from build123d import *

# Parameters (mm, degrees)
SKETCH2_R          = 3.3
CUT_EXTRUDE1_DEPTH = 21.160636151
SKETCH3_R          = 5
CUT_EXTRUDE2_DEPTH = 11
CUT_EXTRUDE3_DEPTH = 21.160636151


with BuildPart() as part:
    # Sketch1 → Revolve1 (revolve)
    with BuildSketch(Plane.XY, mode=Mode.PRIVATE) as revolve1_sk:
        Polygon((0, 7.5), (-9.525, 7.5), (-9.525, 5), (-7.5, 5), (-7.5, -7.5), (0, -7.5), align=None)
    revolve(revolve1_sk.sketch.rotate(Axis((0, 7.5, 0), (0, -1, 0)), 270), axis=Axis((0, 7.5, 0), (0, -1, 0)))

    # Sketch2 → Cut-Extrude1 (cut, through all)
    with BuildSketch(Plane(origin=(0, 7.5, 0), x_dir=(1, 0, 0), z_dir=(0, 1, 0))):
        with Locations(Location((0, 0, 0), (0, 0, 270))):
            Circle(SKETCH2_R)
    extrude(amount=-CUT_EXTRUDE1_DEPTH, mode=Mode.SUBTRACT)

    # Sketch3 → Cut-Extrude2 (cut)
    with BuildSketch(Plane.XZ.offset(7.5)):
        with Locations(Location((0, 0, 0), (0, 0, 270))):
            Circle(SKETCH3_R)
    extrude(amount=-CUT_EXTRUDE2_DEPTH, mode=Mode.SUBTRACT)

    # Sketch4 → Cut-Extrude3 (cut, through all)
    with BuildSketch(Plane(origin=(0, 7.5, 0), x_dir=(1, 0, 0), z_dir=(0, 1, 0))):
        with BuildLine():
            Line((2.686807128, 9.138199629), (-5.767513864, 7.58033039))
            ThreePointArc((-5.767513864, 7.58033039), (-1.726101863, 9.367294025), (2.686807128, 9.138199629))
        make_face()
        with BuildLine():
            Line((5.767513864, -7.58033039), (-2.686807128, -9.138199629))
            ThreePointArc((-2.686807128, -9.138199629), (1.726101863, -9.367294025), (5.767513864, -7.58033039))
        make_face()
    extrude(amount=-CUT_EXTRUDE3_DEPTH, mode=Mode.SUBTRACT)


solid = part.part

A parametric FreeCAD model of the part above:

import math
import FreeCAD as App
import Part
import Sketcher

V = App.Vector

doc = App.newDocument("Part")
body = doc.addObject("PartDesign::Body", "Body")

# Sketch on XY plane
sketch1 = body.newObject("Sketcher::SketchObject", "Sketch")
sketch1.AttachmentSupport = (doc.getObject("XY_Plane"), [""])
sketch1.MapMode = "FlatFace"
sketch1.addGeometry([
    Part.LineSegment(V(0, 7.5, 0), V(-9.5, 7.5, 0)),  # 0
    Part.LineSegment(V(-9.5, 7.5, 0), V(-9.5, 5, 0)),  # 1
    Part.LineSegment(V(-9.5, 5, 0), V(-7.5, 5, 0)),  # 2
    Part.LineSegment(V(-7.5, 5, 0), V(-7.5, -7.5, 0)),  # 3
    Part.LineSegment(V(-7.5, -7.5, 0), V(0, -7.5, 0)),  # 4
    Part.LineSegment(V(0, -7.5, 0), V(0, 7.5, 0)),  # 5
], False)
sketch1.addConstraint([
    Sketcher.Constraint("Coincident", 0, 2, 1, 1),
    Sketcher.Constraint("Coincident", 1, 2, 2, 1),
    Sketcher.Constraint("Coincident", 2, 2, 3, 1),
    Sketcher.Constraint("Coincident", 3, 2, 4, 1),
    Sketcher.Constraint("Coincident", 4, 2, 5, 1),
    Sketcher.Constraint("Coincident", 5, 2, 0, 1),
    Sketcher.Constraint("Horizontal", 0),
    Sketcher.Constraint("Vertical", 1),
    Sketcher.Constraint("Horizontal", 2),
    Sketcher.Constraint("Vertical", 3),
    Sketcher.Constraint("Horizontal", 4),
    Sketcher.Constraint("Vertical", 5),
    Sketcher.Constraint("Symmetric", 4, 2, 5, 2, -1, 1),
    Sketcher.Constraint("DistanceY", 5, 1, 5, 2, 15.0),
    Sketcher.Constraint("DistanceX", 4, 1, 4, 2, 7.5),
    Sketcher.Constraint("DistanceY", 1, 2, 1, 1, 2.5),
    Sketcher.Constraint("DistanceX", 0, 2, 0, 1, 9.525),
])
revolution = body.newObject("PartDesign::Revolution", "Revolution")
revolution.Profile = sketch1
revolution.ReferenceAxis = (sketch1, ["V_Axis"])
revolution.Angle = 360

# Sketch on XZ plane
sketch2 = body.newObject("Sketcher::SketchObject", "Sketch001")
sketch2.AttachmentSupport = (doc.getObject("XZ_Plane"), [""])
sketch2.MapMode = "FlatFace"
sketch2.AttachmentOffset = App.Placement(V(0, 0, -7.5), App.Rotation())
sketch2.addGeometry(Part.Circle(V(0, 0, 0), V(0, 0, 1), 3.3), False)
sketch2.addConstraint([
    Sketcher.Constraint("Coincident", 0, 3, -1, 1),
    Sketcher.Constraint("Diameter", 0, 6.6),
])
pocket1 = body.newObject("PartDesign::Pocket", "Pocket")
pocket1.Profile = sketch2
pocket1.Type = "ThroughAll"
pocket1.Reversed = True

# Sketch on XZ plane
sketch3 = body.newObject("Sketcher::SketchObject", "Sketch002")
sketch3.AttachmentSupport = (doc.getObject("XZ_Plane"), [""])
sketch3.MapMode = "FlatFace"
sketch3.AttachmentOffset = App.Placement(V(0, 0, 7.5), App.Rotation())
sketch3.addGeometry(Part.Circle(V(0, 0, 0), V(0, 0, 1), 5), False)
sketch3.addConstraint([
    Sketcher.Constraint("Coincident", 0, 3, -1, 1),
    Sketcher.Constraint("Diameter", 0, 10.0),
])
pocket2 = body.newObject("PartDesign::Pocket", "Pocket001")
pocket2.Profile = sketch3
pocket2.Length = 11

# Sketch on XZ plane
sketch4 = body.newObject("Sketcher::SketchObject", "Sketch003")
sketch4.AttachmentSupport = (doc.getObject("XZ_Plane"), [""])
sketch4.MapMode = "FlatFace"
sketch4.AttachmentOffset = App.Placement(V(0, 0, -7.5), App.Rotation())
sketch4.addGeometry([
    Part.LineSegment(V(-6, -8, 0), V(3, -9, 0)),
    Part.ArcOfCircle(Part.Circle(V(0, 0, 0), V(0, 0, 1), 10), math.radians(-127), math.radians(-74)),
    Part.LineSegment(V(6, 8, 0), V(-3, 9, 0)),
    Part.ArcOfCircle(Part.Circle(V(0, 0, 0), V(0, 0, 1), 10), math.radians(53), math.radians(106)),
], False)
sketch4.addConstraint([
    Sketcher.Constraint("Coincident", 0, 1, 1, 1),
    Sketcher.Constraint("Coincident", 1, 2, 0, 2),
    Sketcher.Constraint("Coincident", 2, 1, 3, 1),
    Sketcher.Constraint("Coincident", 3, 2, 2, 2),
    Sketcher.Constraint("Coincident", 1, 3, -1, 1),
    Sketcher.Constraint("Coincident", 3, 3, -1, 1),
    Sketcher.Constraint("Equal", 1, 3),
    Sketcher.Constraint("Parallel", 0, 2),
    Sketcher.Constraint("Equal", 0, 2),
    Sketcher.Constraint("Radius", 1, 9.525),
    Sketcher.Constraint("DistanceY", 1, 2, -1, 1, 9.1382),
    Sketcher.Constraint("DistanceY", 0, 1, -1, 1, 7.58033),
])
pocket3 = body.newObject("PartDesign::Pocket", "Pocket002")
pocket3.Profile = sketch4
pocket3.Type = "ThroughAll"
pocket3.Reversed = True

doc.recompute()
